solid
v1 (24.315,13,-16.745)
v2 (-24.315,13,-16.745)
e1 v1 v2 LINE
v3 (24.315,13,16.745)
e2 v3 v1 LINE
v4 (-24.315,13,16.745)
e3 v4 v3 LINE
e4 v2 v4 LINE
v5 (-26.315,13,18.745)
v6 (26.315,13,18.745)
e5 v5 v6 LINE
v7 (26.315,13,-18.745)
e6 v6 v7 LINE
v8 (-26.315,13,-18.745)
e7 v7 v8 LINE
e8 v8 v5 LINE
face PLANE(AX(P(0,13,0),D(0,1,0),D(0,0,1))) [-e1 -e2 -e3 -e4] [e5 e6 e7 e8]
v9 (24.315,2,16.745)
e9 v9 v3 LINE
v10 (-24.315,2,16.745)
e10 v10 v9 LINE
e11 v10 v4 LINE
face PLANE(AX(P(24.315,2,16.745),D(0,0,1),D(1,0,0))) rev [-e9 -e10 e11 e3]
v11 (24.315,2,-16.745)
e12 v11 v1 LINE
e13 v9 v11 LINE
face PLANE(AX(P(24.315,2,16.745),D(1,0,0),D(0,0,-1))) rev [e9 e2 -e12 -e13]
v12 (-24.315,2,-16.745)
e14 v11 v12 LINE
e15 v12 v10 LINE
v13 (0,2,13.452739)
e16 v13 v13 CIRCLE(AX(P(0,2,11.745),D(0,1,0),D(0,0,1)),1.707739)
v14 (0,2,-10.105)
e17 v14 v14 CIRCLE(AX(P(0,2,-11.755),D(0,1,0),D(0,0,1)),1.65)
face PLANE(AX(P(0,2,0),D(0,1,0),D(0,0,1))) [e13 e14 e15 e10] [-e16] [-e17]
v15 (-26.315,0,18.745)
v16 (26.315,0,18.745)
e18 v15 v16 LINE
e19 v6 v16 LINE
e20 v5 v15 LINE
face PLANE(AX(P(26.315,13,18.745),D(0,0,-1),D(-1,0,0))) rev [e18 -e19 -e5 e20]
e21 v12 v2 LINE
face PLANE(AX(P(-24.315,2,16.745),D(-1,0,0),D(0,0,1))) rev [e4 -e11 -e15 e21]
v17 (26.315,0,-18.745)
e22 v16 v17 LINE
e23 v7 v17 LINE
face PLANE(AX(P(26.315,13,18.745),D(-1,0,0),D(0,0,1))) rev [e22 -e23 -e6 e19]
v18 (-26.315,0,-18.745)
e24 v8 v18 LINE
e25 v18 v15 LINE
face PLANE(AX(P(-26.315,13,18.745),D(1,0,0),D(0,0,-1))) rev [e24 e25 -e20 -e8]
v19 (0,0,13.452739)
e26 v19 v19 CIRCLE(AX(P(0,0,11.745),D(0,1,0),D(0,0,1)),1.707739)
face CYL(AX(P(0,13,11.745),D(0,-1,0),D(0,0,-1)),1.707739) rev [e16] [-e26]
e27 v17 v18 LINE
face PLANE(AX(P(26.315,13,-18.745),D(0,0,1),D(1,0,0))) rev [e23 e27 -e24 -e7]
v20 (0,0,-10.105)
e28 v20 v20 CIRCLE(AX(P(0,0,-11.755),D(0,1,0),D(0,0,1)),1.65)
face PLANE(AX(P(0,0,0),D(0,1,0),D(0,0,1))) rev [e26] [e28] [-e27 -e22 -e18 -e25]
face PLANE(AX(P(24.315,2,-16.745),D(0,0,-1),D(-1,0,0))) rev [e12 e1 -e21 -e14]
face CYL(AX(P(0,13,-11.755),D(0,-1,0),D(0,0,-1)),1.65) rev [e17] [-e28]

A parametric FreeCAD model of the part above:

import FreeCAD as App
import Part
import Sketcher

doc = App.newDocument("Part")
body = doc.addObject("PartDesign::Body", "Body")

# Sketch on XZ plane
sketch1 = body.newObject("Sketcher::SketchObject", "Sketch")
sketch1.AttachmentSupport = (doc.getObject("XZ_Plane"), [""])
sketch1.MapMode = "FlatFace"
sketch1.addGeometry([
    Part.LineSegment(App.Vector(-26.3, -18.7, 0), App.Vector(-26.3, 18.7, 0)),  # 0
    Part.LineSegment(App.Vector(-26.3, 18.7, 0), App.Vector(26.3, 18.7, 0)),  # 1
    Part.LineSegment(App.Vector(26.3, 18.7, 0), App.Vector(26.3, -18.7, 0)),  # 2
    Part.LineSegment(App.Vector(26.3, -18.7, 0), App.Vector(-26.3, -18.7, 0)),  # 3
    Part.Circle(App.Vector(0, 11.7, 0), App.Vector(0, 0, 1), 1.7),  # 4
    Part.Circle(App.Vector(0, -11.8, 0), App.Vector(0, 0, 1), 1.6),  # 5
], False)
sketch1.addConstraint([
    Sketcher.Constraint("Coincident", 0, 2, 1, 1),
    Sketcher.Constraint("Coincident", 1, 2, 2, 1),
    Sketcher.Constraint("Coincident", 2, 2, 3, 1),
    Sketcher.Constraint("Coincident", 3, 2, 0, 1),
    Sketcher.Constraint("Vertical", 0),
    Sketcher.Constraint("Horizontal", 1),
    Sketcher.Constraint("Vertical", 2),
    Sketcher.Constraint("Horizontal", 3),
    Sketcher.Constraint("Symmetric", 0, 2, 2, 2, -1, 1),
    Sketcher.Constraint("PointOnObject", 4, 3, -2),
    Sketcher.Constraint("PointOnObject", 5, 3, -2),
    Sketcher.Constraint("Diameter", 5, 3.3),
    Sketcher.Constraint("DistanceY", 4, 3, 0, 2, 7.0),
    Sketcher.Constraint("DistanceX", 1, 1, 1, 2, 52.63),
    Sketcher.Constraint("DistanceY", 0, 1, 0, 2, 37.49),
    Sketcher.Constraint("DistanceY", 5, 3, 4, 3, 23.5),
    Sketcher.Constraint("Diameter", 4, 3.415479),
])
pad1 = body.newObject("PartDesign::Pad", "Pad")
pad1.Profile = sketch1
pad1.Length = 13
pad1.Reversed = True

# Sketch on XZ plane
sketch2 = body.newObject("Sketcher::SketchObject", "Sketch001")
sketch2.AttachmentSupport = (doc.getObject("XZ_Plane"), [""])
sketch2.MapMode = "FlatFace"
sketch2.AttachmentOffset = App.Placement(App.Vector(0, 0, -13), App.Rotation())
sketch2.addGeometry([
    Part.LineSegment(App.Vector(-24, -17, 0), App.Vector(-24, 17, 0)),
    Part.LineSegment(App.Vector(-24, 17, 0), App.Vector(24, 17, 0)),
    Part.LineSegment(App.Vector(24, 17, 0), App.Vector(24, -17, 0)),
    Part.LineSegment(App.Vector(24, -17, 0), App.Vector(-24, -17, 0)),
], False)
sketch2.addConstraint([
    Sketcher.Constraint("Coincident", 0, 2, 1, 1),
    Sketcher.Constraint("Coincident", 1, 2, 2, 1),
    Sketcher.Constraint("Coincident", 2, 2, 3, 1),
    Sketcher.Constraint("Coincident", 3, 2, 0, 1),
    Sketcher.Constraint("Vertical", 0),
    Sketcher.Constraint("Horizontal", 1),
    Sketcher.Constraint("Vertical", 2),
    Sketcher.Constraint("Horizontal", 3),
    Sketcher.Constraint("Symmetric", 0, 2, 2, 2, -1, 1),
    Sketcher.Constraint("DistanceX", 1, 1, 1, 2, 48.63),
    Sketcher.Constraint("DistanceY", 0, 1, 0, 2, 33.49),
])
pocket1 = body.newObject("PartDesign::Pocket", "Pocket")
pocket1.Profile = sketch2
pocket1.Length = 11
pocket1.Reversed = True

doc.recompute()
